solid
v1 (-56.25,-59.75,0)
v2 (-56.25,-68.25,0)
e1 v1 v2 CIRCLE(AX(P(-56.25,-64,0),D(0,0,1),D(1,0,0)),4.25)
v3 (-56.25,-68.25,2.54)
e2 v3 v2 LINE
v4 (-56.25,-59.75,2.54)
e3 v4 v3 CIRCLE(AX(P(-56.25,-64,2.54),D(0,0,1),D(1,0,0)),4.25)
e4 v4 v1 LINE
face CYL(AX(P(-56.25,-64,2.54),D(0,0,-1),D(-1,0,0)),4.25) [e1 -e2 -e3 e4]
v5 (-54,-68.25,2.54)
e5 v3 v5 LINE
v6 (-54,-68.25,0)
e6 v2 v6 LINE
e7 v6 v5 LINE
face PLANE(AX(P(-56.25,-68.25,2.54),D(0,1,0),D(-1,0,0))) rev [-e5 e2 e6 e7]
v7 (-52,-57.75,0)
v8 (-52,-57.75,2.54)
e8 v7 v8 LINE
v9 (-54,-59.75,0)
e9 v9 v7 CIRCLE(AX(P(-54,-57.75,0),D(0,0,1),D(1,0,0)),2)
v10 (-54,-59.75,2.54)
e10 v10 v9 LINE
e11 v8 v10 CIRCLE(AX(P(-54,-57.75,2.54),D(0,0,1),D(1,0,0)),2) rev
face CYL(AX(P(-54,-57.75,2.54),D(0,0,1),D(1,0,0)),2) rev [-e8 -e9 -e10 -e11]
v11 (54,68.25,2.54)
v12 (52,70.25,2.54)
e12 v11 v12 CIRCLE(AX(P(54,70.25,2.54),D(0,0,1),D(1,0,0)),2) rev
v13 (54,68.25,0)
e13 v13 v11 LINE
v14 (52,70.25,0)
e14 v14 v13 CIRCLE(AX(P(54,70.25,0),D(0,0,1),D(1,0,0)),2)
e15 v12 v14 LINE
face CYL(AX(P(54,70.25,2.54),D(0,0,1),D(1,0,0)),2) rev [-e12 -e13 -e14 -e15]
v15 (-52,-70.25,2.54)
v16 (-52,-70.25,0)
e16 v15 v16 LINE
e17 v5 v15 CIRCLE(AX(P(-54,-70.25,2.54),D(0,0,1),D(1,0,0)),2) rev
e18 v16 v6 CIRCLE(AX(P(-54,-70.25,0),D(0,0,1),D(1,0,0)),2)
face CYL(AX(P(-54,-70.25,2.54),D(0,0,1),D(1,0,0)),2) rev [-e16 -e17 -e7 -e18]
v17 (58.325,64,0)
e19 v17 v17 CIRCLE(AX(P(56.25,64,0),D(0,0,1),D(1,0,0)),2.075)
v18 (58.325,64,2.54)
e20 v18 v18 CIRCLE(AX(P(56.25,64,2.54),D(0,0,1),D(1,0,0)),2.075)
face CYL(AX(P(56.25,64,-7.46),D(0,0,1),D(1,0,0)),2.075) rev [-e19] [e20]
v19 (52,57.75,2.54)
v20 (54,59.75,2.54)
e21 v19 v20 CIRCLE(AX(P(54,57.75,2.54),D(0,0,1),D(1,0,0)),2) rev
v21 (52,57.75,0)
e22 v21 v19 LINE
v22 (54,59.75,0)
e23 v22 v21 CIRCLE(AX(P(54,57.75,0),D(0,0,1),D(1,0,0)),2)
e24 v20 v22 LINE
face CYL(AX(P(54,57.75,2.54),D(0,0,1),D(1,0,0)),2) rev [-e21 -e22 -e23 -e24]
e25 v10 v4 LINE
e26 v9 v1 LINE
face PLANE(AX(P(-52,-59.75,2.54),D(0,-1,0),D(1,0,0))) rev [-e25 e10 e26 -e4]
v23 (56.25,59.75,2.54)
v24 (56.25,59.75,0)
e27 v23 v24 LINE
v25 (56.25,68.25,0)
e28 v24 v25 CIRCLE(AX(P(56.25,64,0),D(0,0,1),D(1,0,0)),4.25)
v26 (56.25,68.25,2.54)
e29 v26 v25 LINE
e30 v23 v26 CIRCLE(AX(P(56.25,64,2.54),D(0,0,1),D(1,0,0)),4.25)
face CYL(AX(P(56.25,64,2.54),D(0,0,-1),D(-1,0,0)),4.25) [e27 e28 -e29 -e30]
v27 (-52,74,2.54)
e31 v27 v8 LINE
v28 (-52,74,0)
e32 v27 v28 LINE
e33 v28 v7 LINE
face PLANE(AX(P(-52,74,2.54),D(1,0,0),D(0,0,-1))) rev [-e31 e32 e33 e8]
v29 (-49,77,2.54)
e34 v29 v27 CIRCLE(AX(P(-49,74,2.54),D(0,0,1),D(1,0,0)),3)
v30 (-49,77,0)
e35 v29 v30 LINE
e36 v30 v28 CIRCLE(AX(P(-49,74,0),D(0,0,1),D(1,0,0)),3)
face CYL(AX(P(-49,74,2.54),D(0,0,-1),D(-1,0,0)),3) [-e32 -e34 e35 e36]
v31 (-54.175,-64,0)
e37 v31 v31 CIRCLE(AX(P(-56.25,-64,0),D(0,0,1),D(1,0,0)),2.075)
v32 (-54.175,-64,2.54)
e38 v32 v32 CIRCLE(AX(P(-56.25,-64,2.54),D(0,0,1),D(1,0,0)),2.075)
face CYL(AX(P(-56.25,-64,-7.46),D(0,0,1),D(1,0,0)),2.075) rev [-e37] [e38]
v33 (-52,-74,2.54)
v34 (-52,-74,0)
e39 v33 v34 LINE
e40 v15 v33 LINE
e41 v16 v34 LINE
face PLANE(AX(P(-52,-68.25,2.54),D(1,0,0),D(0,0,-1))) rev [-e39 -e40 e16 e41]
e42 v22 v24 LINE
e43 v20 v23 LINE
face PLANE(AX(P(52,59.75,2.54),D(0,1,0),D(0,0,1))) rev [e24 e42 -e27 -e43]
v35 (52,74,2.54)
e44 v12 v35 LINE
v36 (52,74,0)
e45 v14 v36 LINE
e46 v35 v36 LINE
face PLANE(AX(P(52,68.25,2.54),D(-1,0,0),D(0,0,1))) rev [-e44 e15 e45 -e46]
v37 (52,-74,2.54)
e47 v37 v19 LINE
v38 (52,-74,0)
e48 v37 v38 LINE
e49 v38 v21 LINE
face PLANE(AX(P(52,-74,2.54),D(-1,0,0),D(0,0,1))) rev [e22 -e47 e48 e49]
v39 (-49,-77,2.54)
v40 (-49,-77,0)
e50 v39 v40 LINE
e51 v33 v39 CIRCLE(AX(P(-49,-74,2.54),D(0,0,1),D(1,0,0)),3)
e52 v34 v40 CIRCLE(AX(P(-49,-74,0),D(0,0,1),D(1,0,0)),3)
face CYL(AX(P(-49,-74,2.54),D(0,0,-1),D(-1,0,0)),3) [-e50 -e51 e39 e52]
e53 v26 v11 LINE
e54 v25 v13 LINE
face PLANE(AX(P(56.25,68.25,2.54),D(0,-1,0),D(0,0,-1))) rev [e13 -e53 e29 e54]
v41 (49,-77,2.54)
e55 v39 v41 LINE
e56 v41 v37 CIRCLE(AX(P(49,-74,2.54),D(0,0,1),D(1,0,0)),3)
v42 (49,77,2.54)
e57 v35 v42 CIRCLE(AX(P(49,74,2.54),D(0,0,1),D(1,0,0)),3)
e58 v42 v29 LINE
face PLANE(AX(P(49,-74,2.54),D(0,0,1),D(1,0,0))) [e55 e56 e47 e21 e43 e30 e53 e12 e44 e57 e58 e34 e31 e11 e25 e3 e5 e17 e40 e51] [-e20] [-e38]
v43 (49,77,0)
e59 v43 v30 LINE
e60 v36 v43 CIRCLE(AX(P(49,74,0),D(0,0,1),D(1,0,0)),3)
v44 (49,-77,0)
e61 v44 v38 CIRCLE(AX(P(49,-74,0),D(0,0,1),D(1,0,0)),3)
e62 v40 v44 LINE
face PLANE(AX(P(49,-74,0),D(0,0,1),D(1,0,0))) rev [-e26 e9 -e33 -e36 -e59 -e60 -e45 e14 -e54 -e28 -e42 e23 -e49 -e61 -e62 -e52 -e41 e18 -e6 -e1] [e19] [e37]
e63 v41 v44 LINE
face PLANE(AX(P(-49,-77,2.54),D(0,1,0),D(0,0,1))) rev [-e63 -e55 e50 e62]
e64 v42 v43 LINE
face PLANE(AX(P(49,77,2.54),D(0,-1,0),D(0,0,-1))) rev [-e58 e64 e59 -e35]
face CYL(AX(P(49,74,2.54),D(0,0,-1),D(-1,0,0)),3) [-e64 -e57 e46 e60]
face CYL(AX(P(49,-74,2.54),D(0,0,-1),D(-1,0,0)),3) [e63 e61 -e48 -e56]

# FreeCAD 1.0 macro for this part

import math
import FreeCAD as App
import Part
import Sketcher

V = App.Vector


def edges_at(feature, points):
    """Names of the edges that pass closest to the given points."""
    edges = feature.Shape.Edges
    near = lambda p: min(range(len(edges)), key=lambda i: edges[i].distToShape(Part.Vertex(*p))[0])
    return sorted({f"Edge{near(p) + 1}" for p in points})

doc = App.newDocument("Part")
params = doc.addObject("Spreadsheet::Sheet", "Params")
for row, (alias, value) in enumerate([
    ("sketch1_radius", "3 mm"),
    ("sketch1_width", "98 mm"),
    ("sketch1_radius2", "4.25 mm"),
    ("sketch1_width2", "4.25 mm"),
    ("pad1_length", "2.54 mm"),
    ("sketch2_diameter", "4.15 mm"),
    ("pocket1_length", "10 mm"),
    ("fillet_radius", "2 mm"),
], start=1):
    params.set(f"A{row}", alias)
    params.set(f"B{row}", "=" + value)
    params.setAlias(f"B{row}", alias)

body = doc.addObject("PartDesign::Body", "Body")

# Sketch on XY plane
sketch1 = doc.addObject("Sketcher::SketchObject", "Sketch")
body.addObject(sketch1)
sketch1.AttachmentSupport = (doc.XY_Plane, [""])
sketch1.MapMode = "FlatFace"
sketch1.addGeometry(Part.LineSegment(V(52, -74, 0), V(52, 59.75, 0)), False)
sketch1.addGeometry(Part.LineSegment(V(52, 59.75, 0), V(56.25, 59.75, 0)), False)
sketch1.addGeometry(Part.ArcOfCircle(Part.Circle(V(56.25, 64, 0), V(0, 0, 1), 4.25), math.radians(-90), math.radians(90)), False)
sketch1.addGeometry(Part.LineSegment(V(56.25, 68.25, 0), V(52, 68.25, 0)), False)
sketch1.addGeometry(Part.LineSegment(V(52, 68.25, 0), V(52, 74, 0)), False)
sketch1.addGeometry(Part.ArcOfCircle(Part.Circle(V(49, 74, 0), V(0, 0, 1), 3), math.radians(0), math.radians(90)), False)
sketch1.addGeometry(Part.LineSegment(V(49, 77, 0), V(-49, 77, 0)), False)
sketch1.addGeometry(Part.ArcOfCircle(Part.Circle(V(-49, 74, 0), V(0, 0, 1), 3), math.radians(90), math.radians(180)), False)
sketch1.addGeometry(Part.LineSegment(V(-52, 74, 0), V(-52, -59.75, 0)), False)
sketch1.addGeometry(Part.LineSegment(V(-52, -59.75, 0), V(-56.25, -59.75, 0)), False)
sketch1.addGeometry(Part.ArcOfCircle(Part.Circle(V(-56.25, -64, 0), V(0, 0, 1), 4.25), math.radians(90), math.radians(270)), False)
sketch1.addGeometry(Part.LineSegment(V(-56.25, -68.25, 0), V(-52, -68.25, 0)), False)
sketch1.addGeometry(Part.LineSegment(V(-52, -68.25, 0), V(-52, -74, 0)), False)
sketch1.addGeometry(Part.ArcOfCircle(Part.Circle(V(-49, -74, 0), V(0, 0, 1), 3), math.radians(180), math.radians(270)), False)
sketch1.addGeometry(Part.LineSegment(V(-49, -77, 0), V(49, -77, 0)), False)
sketch1.addGeometry(Part.ArcOfCircle(Part.Circle(V(49, -74, 0), V(0, 0, 1), 3), math.radians(-90), math.radians(0)), False)
sketch1.addConstraint(Sketcher.Constraint("Coincident", 0, 2, 1, 1))
sketch1.addConstraint(Sketcher.Constraint("Tangent", 1, 2, 2, 1))
sketch1.addConstraint(Sketcher.Constraint("Tangent", 2, 2, 3, 1))
sketch1.addConstraint(Sketcher.Constraint("Coincident", 3, 2, 4, 1))
sketch1.addConstraint(Sketcher.Constraint("Tangent", 4, 2, 5, 1))
sketch1.addConstraint(Sketcher.Constraint("Tangent", 5, 2, 6, 1))
sketch1.addConstraint(Sketcher.Constraint("Tangent", 6, 2, 7, 1))
sketch1.addConstraint(Sketcher.Constraint("Tangent", 7, 2, 8, 1))
sketch1.addConstraint(Sketcher.Constraint("Coincident", 8, 2, 9, 1))
sketch1.addConstraint(Sketcher.Constraint("Tangent", 9, 2, 10, 1))
sketch1.addConstraint(Sketcher.Constraint("Tangent", 10, 2, 11, 1))
sketch1.addConstraint(Sketcher.Constraint("Coincident", 11, 2, 12, 1))
sketch1.addConstraint(Sketcher.Constraint("Tangent", 12, 2, 13, 1))
sketch1.addConstraint(Sketcher.Constraint("Tangent", 13, 2, 14, 1))
sketch1.addConstraint(Sketcher.Constraint("Tangent", 14, 2, 15, 1))
sketch1.addConstraint(Sketcher.Constraint("Tangent", 15, 2, 0, 1))
sketch1.addConstraint(Sketcher.Constraint("Vertical", 0))
sketch1.addConstraint(Sketcher.Constraint("Horizontal", 1))
sketch1.addConstraint(Sketcher.Constraint("Horizontal", 3))
sketch1.addConstraint(Sketcher.Constraint("Vertical", 4))
sketch1.addConstraint(Sketcher.Constraint("Horizontal", 6))
sketch1.addConstraint(Sketcher.Constraint("Vertical", 8))
sketch1.addConstraint(Sketcher.Constraint("Horizontal", 9))
sketch1.addConstraint(Sketcher.Constraint("Horizontal", 11))
sketch1.addConstraint(Sketcher.Constraint("Vertical", 12))
sketch1.addConstraint(Sketcher.Constraint("Horizontal", 14))
sketch1.addConstraint(Sketcher.Constraint("Equal", 5, 7))
sketch1.addConstraint(Sketcher.Constraint("Equal", 2, 10))
sketch1.addConstraint(Sketcher.Constraint("Equal", 7, 13))
sketch1.addConstraint(Sketcher.Constraint("Equal", 13, 15))
sketch1.addConstraint(Sketcher.Constraint("Symmetric", 2, 3, 10, 3, -1, 1))
sketch1.addConstraint(Sketcher.Constraint("Symmetric", 5, 3, 13, 3, -1, 1))
sketch1.addConstraint(Sketcher.Constraint("Vertical", 7, 3, 13, 3))
sketch1.addConstraint(Sketcher.Constraint("Vertical", 5, 3, 15, 3))
sketch1.addConstraint(Sketcher.Constraint("Radius", 5, 3.0))
sketch1.addConstraint(Sketcher.Constraint("DistanceX", 6, 2, 6, 1, 98.0))
sketch1.addConstraint(Sketcher.Constraint("Radius", 2, 4.25))
sketch1.addConstraint(Sketcher.Constraint("DistanceY", -1, 1, 2, 3, 64.0))
sketch1.addConstraint(Sketcher.Constraint("DistanceY", -1, 1, 5, 3, 74.0))
sketch1.addConstraint(Sketcher.Constraint("DistanceX", 1, 1, 1, 2, 4.25))
sketch1.setExpression("Constraints[34]", "Params.sketch1_radius")
sketch1.setExpression("Constraints[35]", "Params.sketch1_width")
sketch1.setExpression("Constraints[36]", "Params.sketch1_radius2")
sketch1.setExpression("Constraints[39]", "Params.sketch1_width2")
pad1 = doc.addObject("PartDesign::Pad", "Pad")
body.addObject(pad1)
pad1.Profile = sketch1
pad1.setExpression("Length", "Params.pad1_length")

# Sketch on XY plane
sketch2 = doc.addObject("Sketcher::SketchObject", "Sketch001")
body.addObject(sketch2)
sketch2.AttachmentSupport = (doc.XY_Plane, [""])
sketch2.MapMode = "FlatFace"
sketch2.AttachmentOffset = App.Placement(V(0, 0, 2.54), App.Rotation())
sketch2.addGeometry(Part.Circle(V(56.25, 64, 0), V(0, 0, 1), 2.075), False)
sketch2.addGeometry(Part.Circle(V(-56.25, -64, 0), V(0, 0, 1), 2.075), False)
sketch2.addConstraint(Sketcher.Constraint("Equal", 0, 1))
sketch2.addConstraint(Sketcher.Constraint("Symmetric", 0, 3, 1, 3, -1, 1))
sketch2.addConstraint(Sketcher.Constraint("Diameter", 0, 4.15))
sketch2.addConstraint(Sketcher.Constraint("DistanceY", -1, 1, 0, 3, 64.0))
sketch2.addConstraint(Sketcher.Constraint("DistanceX", 1, 3, 0, 3, 112.5))
sketch2.setExpression("Constraints[2]", "Params.sketch2_diameter")
pocket1 = doc.addObject("PartDesign::Pocket", "Pocket")
body.addObject(pocket1)
pocket1.Profile = sketch2
pocket1.setExpression("Length", "Params.pocket1_length")
doc.recompute()

fillet = doc.addObject("PartDesign::Fillet", "Fillet")
body.addObject(fillet)
fillet.Base = (pocket1, edges_at(pocket1, [
    (-52, -68.25, 1.27),
    (-52, -59.75, 1.27),
    (52, 68.25, 1.27),
    (52, 59.75, 1.27),
]))
fillet.setExpression("Radius", "Params.fillet_radius")

doc.recompute()
